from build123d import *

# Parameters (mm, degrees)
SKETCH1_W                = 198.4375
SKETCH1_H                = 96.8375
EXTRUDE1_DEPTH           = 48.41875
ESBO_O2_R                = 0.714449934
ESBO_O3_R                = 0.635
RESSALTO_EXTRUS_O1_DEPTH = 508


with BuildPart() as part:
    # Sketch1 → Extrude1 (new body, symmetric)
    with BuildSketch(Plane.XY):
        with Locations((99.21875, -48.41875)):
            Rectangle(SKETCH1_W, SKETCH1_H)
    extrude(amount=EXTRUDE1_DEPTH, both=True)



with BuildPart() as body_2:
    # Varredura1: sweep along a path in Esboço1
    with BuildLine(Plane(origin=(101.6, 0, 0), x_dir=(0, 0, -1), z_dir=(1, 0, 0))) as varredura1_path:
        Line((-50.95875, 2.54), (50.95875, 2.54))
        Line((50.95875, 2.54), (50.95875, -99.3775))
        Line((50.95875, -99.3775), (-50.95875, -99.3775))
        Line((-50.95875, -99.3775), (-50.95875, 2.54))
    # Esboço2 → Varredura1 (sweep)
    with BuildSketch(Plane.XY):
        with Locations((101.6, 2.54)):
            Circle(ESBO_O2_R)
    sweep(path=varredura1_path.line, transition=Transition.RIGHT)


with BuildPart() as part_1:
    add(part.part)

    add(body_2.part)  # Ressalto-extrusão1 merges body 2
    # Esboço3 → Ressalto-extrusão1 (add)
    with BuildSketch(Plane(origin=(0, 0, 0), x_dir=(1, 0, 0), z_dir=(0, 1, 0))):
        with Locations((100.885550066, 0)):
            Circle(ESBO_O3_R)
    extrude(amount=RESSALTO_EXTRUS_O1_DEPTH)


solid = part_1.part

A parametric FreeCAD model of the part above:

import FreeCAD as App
import Part
import Sketcher

V = App.Vector
Q = App.Units.Quantity


def add_polygon(sketch, points):
    """Adds a closed chain of lines whose ends are joined by coincident constraints."""
    first, n = sketch.GeometryCount, len(points)
    for a, b in zip(points, points[1:] + points[:1]):
        sketch.addGeometry(Part.LineSegment(App.Vector(*a, 0), App.Vector(*b, 0)), False)
    for i in range(n):
        sketch.addConstraint(Sketcher.Constraint("Coincident", first + i, 2, first + (i + 1) % n, 1))

doc = App.newDocument("Part")
body = doc.addObject("PartDesign::Body", "Body")

# Sketch on XY plane
sketch1 = doc.addObject("Sketcher::SketchObject", "Sketch")
body.addObject(sketch1)
sketch1.AttachmentSupport = (doc.XY_Plane, [""])
sketch1.MapMode = "FlatFace"
add_polygon(sketch1, [(0, 0), (0, -97), (198, -97), (198, 0)])  # lines 0-3
sketch1.addConstraint([
    Sketcher.Constraint("Vertical", 0),
    Sketcher.Constraint("Horizontal", 1),
    Sketcher.Constraint("Vertical", 2),
    Sketcher.Constraint("Horizontal", 3),
    Sketcher.Constraint("Coincident", 3, 2, -1, 1),
    Sketcher.Constraint("DistanceX", 1, 1, 1, 2, Q("7.8125 in")),
    Sketcher.Constraint("DistanceY", 0, 2, 0, 1, Q("3.8125 in")),
])
pad1 = doc.addObject("PartDesign::Pad", "Pad")
body.addObject(pad1)
pad1.Profile = sketch1
pad1.Length = Q("3.8125 in")
pad1.Midplane = True
body2 = doc.addObject("PartDesign::Body", "Body001")

# Sketch on XY plane
sketch2 = doc.addObject("Sketcher::SketchObject", "Sketch001")
body2.addObject(sketch2)
sketch2.AttachmentSupport = (doc.getObject("XY_Plane001"), [""])
sketch2.MapMode = "FlatFace"
sketch2.addGeometry(Part.Circle(V(101.6, 2.5, 0), V(0, 0, 1), 0.7), False)
sketch2.addConstraint([
    Sketcher.Constraint("DistanceX", -1, 1, 0, 3, Q("4 in")),
    Sketcher.Constraint("DistanceY", -1, 1, 0, 3, Q("0.1 in")),
    Sketcher.Constraint("Diameter", 0, 1.4289),
])

# Sketch on YZ plane
sketch3 = doc.addObject("Sketcher::SketchObject", "Sketch002")
body2.addObject(sketch3)
sketch3.AttachmentSupport = (doc.getObject("YZ_Plane001"), [""])
sketch3.MapMode = "FlatFace"
sketch3.AttachmentOffset = App.Placement(V(0, 0, 4 * 25.4), App.Rotation())
add_polygon(sketch3, [(3, 51), (3, -51), (-99, -51), (-99, 51)])  # lines 0-3
sketch3.addConstraint([
    Sketcher.Constraint("Vertical", 0),
    Sketcher.Constraint("Horizontal", 1),
    Sketcher.Constraint("Vertical", 2),
    Sketcher.Constraint("Horizontal", 3),
    Sketcher.Constraint("Equal", 3, 0),
    Sketcher.Constraint("DistanceX", -1, 1, 0, 2, Q("0.1 in")),
    Sketcher.Constraint("DistanceX", 1, 2, 1, 1, Q("4.0125 in")),
    Sketcher.Constraint("DistanceY", 0, 2, -1, 1, 50.95875),
])
doc.recompute()

additivepipe = doc.addObject("PartDesign::AdditivePipe", "AdditivePipe")
body2.addObject(additivepipe)
additivepipe.Profile = sketch2
additivepipe.Spine = (sketch3, ["Edge1", "Edge2", "Edge3", "Edge4"])
additivepipe.Transition = "Right corner"
body.AllowCompound = True
doc.recompute()

boolean = doc.addObject("PartDesign::Boolean", "Boolean")
body.addObject(boolean)
boolean.Type = "Fuse"
boolean.addObjects([body2])

# Sketch on XZ plane
sketch4 = doc.addObject("Sketcher::SketchObject", "Sketch003")
body.addObject(sketch4)
sketch4.AttachmentSupport = (doc.XZ_Plane, [""])
sketch4.MapMode = "FlatFace"
sketch4.addGeometry(Part.Circle(V(100.9, 0, 0), V(0, 0, 1), 0.6), False)
sketch4.addConstraint([
    Sketcher.Constraint("PointOnObject", 0, 3, -1),
    Sketcher.Constraint("Diameter", 0, Q("0.05 in")),
    Sketcher.Constraint("DistanceX", -1, 1, 0, 3, 100.88555),
])
pad2 = doc.addObject("PartDesign::Pad", "Pad001")
body.addObject(pad2)
pad2.Profile = sketch4
pad2.Length = Q("20 in")
pad2.Reversed = True

doc.recompute()
